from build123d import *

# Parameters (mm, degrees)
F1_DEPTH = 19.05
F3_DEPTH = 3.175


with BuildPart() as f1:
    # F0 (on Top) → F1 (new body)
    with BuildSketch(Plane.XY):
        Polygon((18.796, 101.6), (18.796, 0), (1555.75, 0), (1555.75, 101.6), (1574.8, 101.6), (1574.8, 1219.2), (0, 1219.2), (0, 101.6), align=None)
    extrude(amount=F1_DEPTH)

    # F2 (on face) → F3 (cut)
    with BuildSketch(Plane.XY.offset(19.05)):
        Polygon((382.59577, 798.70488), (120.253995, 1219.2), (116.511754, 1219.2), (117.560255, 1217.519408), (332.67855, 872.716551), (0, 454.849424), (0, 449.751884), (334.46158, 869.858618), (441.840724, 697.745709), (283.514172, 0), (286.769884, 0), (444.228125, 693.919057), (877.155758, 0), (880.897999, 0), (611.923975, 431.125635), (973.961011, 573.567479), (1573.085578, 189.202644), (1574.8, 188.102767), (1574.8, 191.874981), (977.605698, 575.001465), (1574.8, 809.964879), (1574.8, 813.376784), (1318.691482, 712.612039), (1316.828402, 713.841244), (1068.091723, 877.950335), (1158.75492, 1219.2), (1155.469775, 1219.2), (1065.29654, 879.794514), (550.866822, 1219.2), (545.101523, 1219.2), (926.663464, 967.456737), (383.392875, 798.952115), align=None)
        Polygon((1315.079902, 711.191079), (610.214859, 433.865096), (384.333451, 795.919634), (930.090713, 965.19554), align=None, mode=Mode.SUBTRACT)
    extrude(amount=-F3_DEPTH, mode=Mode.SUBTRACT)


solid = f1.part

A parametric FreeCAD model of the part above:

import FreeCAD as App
import Part
import Sketcher
Q = App.Units.Quantity

doc = App.newDocument("Part")
params = doc.addObject("Spreadsheet::Sheet", "Params")
for row, (alias, value) in enumerate([
    ("sketch1_width", "62 in"),
    ("sketch1_height", "4 in"),
    ("sketch1_height2", "44 in"),
    ("sketch1_width2", "60.51 in"),
    ("sketch1_width3", "0.75 in"),
    ("pad1_length", "0.75 in"),
    ("pocket1_length", "0.125 in"),
], start=1):
    params.set(f"A{row}", alias)
    params.set(f"B{row}", "=" + value)
    params.setAlias(f"B{row}", alias)

body = doc.addObject("PartDesign::Body", "Body")

# Sketch on XY plane
sketch1 = body.newObject("Sketcher::SketchObject", "Sketch")
sketch1.AttachmentSupport = (doc.getObject("XY_Plane"), [""])
sketch1.MapMode = "FlatFace"
sketch1.addGeometry([
    Part.LineSegment(App.Vector(19, 102, 0), App.Vector(19, 0, 0)),  # 0
    Part.LineSegment(App.Vector(19, 0, 0), App.Vector(1556, 0, 0)),  # 1
    Part.LineSegment(App.Vector(1556, 0, 0), App.Vector(1556, 102, 0)),  # 2
    Part.LineSegment(App.Vector(1556, 102, 0), App.Vector(1575, 102, 0)),  # 3
    Part.LineSegment(App.Vector(1575, 102, 0), App.Vector(1575, 1219, 0)),  # 4
    Part.LineSegment(App.Vector(1575, 1219, 0), App.Vector(0, 1219, 0)),  # 5
    Part.LineSegment(App.Vector(0, 1219, 0), App.Vector(0, 102, 0)),  # 6
    Part.LineSegment(App.Vector(0, 102, 0), App.Vector(19, 102, 0)),  # 7
], False)
sketch1.addConstraint([
    Sketcher.Constraint("Coincident", 0, 2, 1, 1),
    Sketcher.Constraint("Coincident", 1, 2, 2, 1),
    Sketcher.Constraint("Coincident", 2, 2, 3, 1),
    Sketcher.Constraint("Coincident", 3, 2, 4, 1),
    Sketcher.Constraint("Coincident", 4, 2, 5, 1),
    Sketcher.Constraint("Coincident", 5, 2, 6, 1),
    Sketcher.Constraint("Coincident", 6, 2, 7, 1),
    Sketcher.Constraint("Coincident", 7, 2, 0, 1),
    Sketcher.Constraint("Vertical", 0),
    Sketcher.Constraint("Horizontal", 1),
    Sketcher.Constraint("Vertical", 2),
    Sketcher.Constraint("Horizontal", 3),
    Sketcher.Constraint("Vertical", 4),
    Sketcher.Constraint("Horizontal", 5),
    Sketcher.Constraint("Vertical", 6),
    Sketcher.Constraint("Horizontal", 7),
    Sketcher.Constraint("PointOnObject", 0, 2, -1),
    Sketcher.Constraint("PointOnObject", 5, 2, -2),
    Sketcher.Constraint("Horizontal", 3, 2, 6, 2),
    Sketcher.Constraint("DistanceX", 5, 2, 5, 1, Q("62 in")),
    Sketcher.Constraint("DistanceY", 0, 2, 0, 1, Q("4 in")),
    Sketcher.Constraint("DistanceY", 4, 1, 4, 2, Q("44 in")),
    Sketcher.Constraint("DistanceX", 1, 1, 1, 2, Q("60.51 in")),
    Sketcher.Constraint("DistanceX", 3, 1, 3, 2, Q("0.75 in")),
])
sketch1.setExpression("Constraints[19]", "Params.sketch1_width")
sketch1.setExpression("Constraints[20]", "Params.sketch1_height")
sketch1.setExpression("Constraints[21]", "Params.sketch1_height2")
sketch1.setExpression("Constraints[22]", "Params.sketch1_width2")
sketch1.setExpression("Constraints[23]", "Params.sketch1_width3")
pad1 = body.newObject("PartDesign::Pad", "Pad")
pad1.Profile = sketch1
pad1.setExpression("Length", "Params.pad1_length")

# Sketch on XY plane
sketch2 = body.newObject("Sketcher::SketchObject", "Sketch001")
sketch2.AttachmentSupport = (doc.getObject("XY_Plane"), [""])
sketch2.MapMode = "FlatFace"
sketch2.AttachmentOffset = App.Placement(App.Vector(0, 0, 0.75 * 25.4), App.Rotation())
sketch2.addGeometry([
    Part.LineSegment(App.Vector(382.59577, 798.70488, 0), App.Vector(120.253995, 1219.2, 0)),  # 0
    Part.LineSegment(App.Vector(120.253995, 1219.2, 0), App.Vector(116.511754, 1219.2, 0)),  # 1
    Part.LineSegment(App.Vector(116.511754, 1219.2, 0), App.Vector(117.560255, 1217.519408, 0)),  # 2
    Part.LineSegment(App.Vector(117.560255, 1217.519408, 0), App.Vector(332.67855, 872.716551, 0)),  # 3
    Part.LineSegment(App.Vector(332.67855, 872.716551, 0), App.Vector(0, 454.849424, 0)),  # 4
    Part.LineSegment(App.Vector(0, 454.849424, 0), App.Vector(0, 449.751884, 0)),  # 5
    Part.LineSegment(App.Vector(0, 449.751884, 0), App.Vector(334.46158, 869.858618, 0)),  # 6
    Part.LineSegment(App.Vector(334.46158, 869.858618, 0), App.Vector(441.840724, 697.745709, 0)),  # 7
    Part.LineSegment(App.Vector(441.840724, 697.745709, 0), App.Vector(283.514172, 0, 0)),  # 8
    Part.LineSegment(App.Vector(283.514172, 0, 0), App.Vector(286.769884, 0, 0)),  # 9
    Part.LineSegment(App.Vector(286.769884, 0, 0), App.Vector(444.228125, 693.919057, 0)),  # 10
    Part.LineSegment(App.Vector(444.228125, 693.919057, 0), App.Vector(877.155758, 0, 0)),  # 11
    Part.LineSegment(App.Vector(877.155758, 0, 0), App.Vector(880.897999, 0, 0)),  # 12
    Part.LineSegment(App.Vector(880.897999, 0, 0), App.Vector(611.923975, 431.125635, 0)),  # 13
    Part.LineSegment(App.Vector(611.923975, 431.125635, 0), App.Vector(973.961011, 573.567479, 0)),  # 14
    Part.LineSegment(App.Vector(973.961011, 573.567479, 0), App.Vector(1573.085578, 189.202644, 0)),  # 15
    Part.LineSegment(App.Vector(1573.085578, 189.202644, 0), App.Vector(1574.8, 188.102767, 0)),  # 16
    Part.LineSegment(App.Vector(1574.8, 188.102767, 0), App.Vector(1574.8, 191.874981, 0)),  # 17
    Part.LineSegment(App.Vector(1574.8, 191.874981, 0), App.Vector(977.605698, 575.001465, 0)),  # 18
    Part.LineSegment(App.Vector(977.605698, 575.001465, 0), App.Vector(1574.8, 809.964879, 0)),  # 19
    Part.LineSegment(App.Vector(1574.8, 809.964879, 0), App.Vector(1574.8, 813.376784, 0)),  # 20
    Part.LineSegment(App.Vector(1574.8, 813.376784, 0), App.Vector(1318.691482, 712.612039, 0)),  # 21
    Part.LineSegment(App.Vector(1318.691482, 712.612039, 0), App.Vector(1316.828402, 713.841244, 0)),  # 22
    Part.LineSegment(App.Vector(1316.828402, 713.841244, 0), App.Vector(1068.091723, 877.950335, 0)),  # 23
    Part.LineSegment(App.Vector(1068.091723, 877.950335, 0), App.Vector(1158.75492, 1219.2, 0)),  # 24
    Part.LineSegment(App.Vector(1158.75492, 1219.2, 0), App.Vector(1155.469775, 1219.2, 0)),  # 25
    Part.LineSegment(App.Vector(1155.469775, 1219.2, 0), App.Vector(1065.29654, 879.794514, 0)),  # 26
    Part.LineSegment(App.Vector(1065.29654, 879.794514, 0), App.Vector(550.866822, 1219.2, 0)),  # 27
    Part.LineSegment(App.Vector(550.866822, 1219.2, 0), App.Vector(545.101523, 1219.2, 0)),  # 28
    Part.LineSegment(App.Vector(545.101523, 1219.2, 0), App.Vector(926.663464, 967.456737, 0)),  # 29
    Part.LineSegment(App.Vector(926.663464, 967.456737, 0), App.Vector(383.392875, 798.952115, 0)),  # 30
    Part.LineSegment(App.Vector(383.392875, 798.952115, 0), App.Vector(382.59577, 798.70488, 0)),  # 31
    Part.LineSegment(App.Vector(930.090713, 965.19554, 0), App.Vector(1315.079902, 711.191079, 0)),  # 32
    Part.LineSegment(App.Vector(1315.079902, 711.191079, 0), App.Vector(610.214859, 433.865096, 0)),  # 33
    Part.LineSegment(App.Vector(610.214859, 433.865096, 0), App.Vector(384.333451, 795.919634, 0)),  # 34
    Part.LineSegment(App.Vector(384.333451, 795.919634, 0), App.Vector(930.090713, 965.19554, 0)),  # 35
], False)
sketch2.addConstraint([
    Sketcher.Constraint("Coincident", 0, 2, 1, 1),
    Sketcher.Constraint("Coincident", 1, 2, 2, 1),
    Sketcher.Constraint("Coincident", 2, 2, 3, 1),
    Sketcher.Constraint("Coincident", 3, 2, 4, 1),
    Sketcher.Constraint("Coincident", 4, 2, 5, 1),
    Sketcher.Constraint("Coincident", 5, 2, 6, 1),
    Sketcher.Constraint("Coincident", 6, 2, 7, 1),
    Sketcher.Constraint("Coincident", 7, 2, 8, 1),
    Sketcher.Constraint("Coincident", 8, 2, 9, 1),
    Sketcher.Constraint("Coincident", 9, 2, 10, 1),
    Sketcher.Constraint("Coincident", 10, 2, 11, 1),
    Sketcher.Constraint("Coincident", 11, 2, 12, 1),
    Sketcher.Constraint("Coincident", 12, 2, 13, 1),
    Sketcher.Constraint("Coincident", 13, 2, 14, 1),
    Sketcher.Constraint("Coincident", 14, 2, 15, 1),
    Sketcher.Constraint("Coincident", 15, 2, 16, 1),
    Sketcher.Constraint("Coincident", 16, 2, 17, 1),
    Sketcher.Constraint("Coincident", 17, 2, 18, 1),
    Sketcher.Constraint("Coincident", 18, 2, 19, 1),
    Sketcher.Constraint("Coincident", 19, 2, 20, 1),
    Sketcher.Constraint("Coincident", 20, 2, 21, 1),
    Sketcher.Constraint("Coincident", 21, 2, 22, 1),
    Sketcher.Constraint("Coincident", 22, 2, 23, 1),
    Sketcher.Constraint("Coincident", 23, 2, 24, 1),
    Sketcher.Constraint("Coincident", 24, 2, 25, 1),
    Sketcher.Constraint("Coincident", 25, 2, 26, 1),
    Sketcher.Constraint("Coincident", 26, 2, 27, 1),
    Sketcher.Constraint("Coincident", 27, 2, 28, 1),
    Sketcher.Constraint("Coincident", 28, 2, 29, 1),
    Sketcher.Constraint("Coincident", 29, 2, 30, 1),
    Sketcher.Constraint("Coincident", 30, 2, 31, 1),
    Sketcher.Constraint("Coincident", 31, 2, 0, 1),
    Sketcher.Constraint("Coincident", 32, 2, 33, 1),
    Sketcher.Constraint("Coincident", 33, 2, 34, 1),
    Sketcher.Constraint("Coincident", 34, 2, 35, 1),
    Sketcher.Constraint("Coincident", 35, 2, 32, 1),
    Sketcher.Constraint("Horizontal", 1),
    Sketcher.Constraint("Vertical", 5),
    Sketcher.Constraint("Horizontal", 9),
    Sketcher.Constraint("Horizontal", 12),
    Sketcher.Constraint("Vertical", 17),
    Sketcher.Constraint("Vertical", 20),
    Sketcher.Constraint("Horizontal", 25),
    Sketcher.Constraint("Horizontal", 28),
    Sketcher.Constraint("PointOnObject", 4, 2, -2),
    Sketcher.Constraint("PointOnObject", 8, 2, -1),
    Sketcher.Constraint("PointOnObject", 11, 2, -1),
    Sketcher.Constraint("DistanceY", -1, 1, 0, 2, Q("48 in")),
    Sketcher.Constraint("DistanceX", -1, 1, 16, 2, Q("62 in")),
    Sketcher.Constraint("DistanceX", -1, 1, 19, 2, Q("62 in")),
    Sketcher.Constraint("DistanceY", -1, 1, 24, 2, Q("48 in")),
    Sketcher.Constraint("DistanceY", -1, 1, 27, 2, Q("48 in")),
    Sketcher.Constraint("DistanceX", 28, 2, 28, 1, 5.765299),
    Sketcher.Constraint("Distance", 15, 711.8192),
    Sketcher.Constraint("Distance", 19, 641.754502),
    Sketcher.Constraint("Distance", 30, 568.802901),
    Sketcher.Constraint("DistanceX", 1, 2, 1, 1, 3.742241),
    Sketcher.Constraint("DistanceX", 12, 1, 12, 2, 3.742241),
    Sketcher.Constraint("DistanceY", 5, 2, 5, 1, 5.09754),
    Sketcher.Constraint("DistanceX", -1, 1, 12, 2, 880.897999),
    Sketcher.Constraint("DistanceX", -1, 1, 18, 2, 977.605698),
    Sketcher.Constraint("DistanceX", -1, 1, 22, 2, 1316.828402),
    Sketcher.Constraint("DistanceX", -1, 1, 32, 2, 1315.079902),
    Sketcher.Constraint("DistanceX", 1, 2, 2, 2, 1.048501),
    Sketcher.Constraint("DistanceY", 7, 2, 2, 2, 519.773699),
    Sketcher.Constraint("DistanceX", 7, 2, 10, 2, 2.387401),
    Sketcher.Constraint("DistanceY", 17, 2, 14, 2, 381.692498),
    Sketcher.Constraint("DistanceY", 17, 2, 19, 2, 618.089898),
    Sketcher.Constraint("DistanceY", 23, 2, 29, 2, 89.506402),
    Sketcher.Constraint("DistanceX", 30, 2, 13, 2, 228.5311),
    Sketcher.Constraint("DistanceY", 32, 2, 19, 2, 98.7738),
    Sketcher.Constraint("DistanceX", 3, 2, 34, 2, 51.654901),
    Sketcher.Constraint("Distance", 0, 495.62017),
    Sketcher.Constraint("Distance", 11, 817.893632),
    Sketcher.Constraint("Distance", 14, 389.050761),
    Sketcher.Constraint("Distance", 21, 275.218289),
    Sketcher.Constraint("Distance", 23, 297.99619),
    Sketcher.Constraint("Distance", 24, 353.088019),
    Sketcher.Constraint("Distance", 35, 571.406441),
    Sketcher.Constraint("DistanceX", 9, 1, 9, 2, 3.255712),
    Sketcher.Constraint("DistanceX", 25, 2, 25, 1, 3.285145),
    Sketcher.Constraint("DistanceY", 17, 1, 17, 2, 3.772214),
    Sketcher.Constraint("DistanceY", 20, 1, 20, 2, 3.411905),
    Sketcher.Constraint("DistanceY", -1, 1, 2, 2, 1217.519408),
    Sketcher.Constraint("DistanceX", -1, 1, 3, 2, 332.67855),
    Sketcher.Constraint("DistanceY", -1, 1, 3, 2, 872.716551),
    Sketcher.Constraint("DistanceX", -1, 1, 6, 2, 334.46158),
    Sketcher.Constraint("DistanceY", -1, 1, 6, 2, 869.858618),
    Sketcher.Constraint("DistanceX", -1, 1, 8, 2, 283.514172),
    Sketcher.Constraint("DistanceX", -1, 1, 14, 2, 973.961011),
    Sketcher.Constraint("DistanceY", -1, 1, 14, 2, 573.567479),
    Sketcher.Constraint("DistanceX", -1, 1, 15, 2, 1573.085578),
    Sketcher.Constraint("DistanceX", -1, 1, 21, 2, 1318.691482),
    Sketcher.Constraint("DistanceX", -1, 1, 24, 2, 1158.75492),
    Sketcher.Constraint("DistanceX", -1, 1, 26, 2, 1065.29654),
    Sketcher.Constraint("DistanceX", -1, 1, 27, 2, 550.866822),
    Sketcher.Constraint("DistanceX", -1, 1, 31, 2, 382.59577),
    Sketcher.Constraint("DistanceY", -1, 1, 31, 2, 798.70488),
    Sketcher.Constraint("DistanceX", -1, 1, 33, 2, 610.214859),
    Sketcher.Constraint("DistanceY", -1, 1, 35, 2, 965.19554),
    Sketcher.Constraint("DistanceX", 2, 2, 7, 2, 324.280469),
    Sketcher.Constraint("DistanceX", 10, 2, 13, 2, 167.69585),
    Sketcher.Constraint("DistanceY", 22, 2, 20, 2, 99.53554),
    Sketcher.Constraint("DistanceY", 23, 2, 26, 2, 1.844179),
    Sketcher.Constraint("DistanceX", 29, 2, 23, 2, 141.428259),
    Sketcher.Constraint("DistanceY", 13, 2, 33, 2, 2.739461),
    Sketcher.Constraint("DistanceY", 34, 2, 30, 2, 3.032481),
    Sketcher.Constraint("Distance", 4, 534.123538),
])
pocket1 = body.newObject("PartDesign::Pocket", "Pocket")
pocket1.Profile = sketch2
pocket1.setExpression("Length", "Params.pocket1_length")

doc.recompute()
